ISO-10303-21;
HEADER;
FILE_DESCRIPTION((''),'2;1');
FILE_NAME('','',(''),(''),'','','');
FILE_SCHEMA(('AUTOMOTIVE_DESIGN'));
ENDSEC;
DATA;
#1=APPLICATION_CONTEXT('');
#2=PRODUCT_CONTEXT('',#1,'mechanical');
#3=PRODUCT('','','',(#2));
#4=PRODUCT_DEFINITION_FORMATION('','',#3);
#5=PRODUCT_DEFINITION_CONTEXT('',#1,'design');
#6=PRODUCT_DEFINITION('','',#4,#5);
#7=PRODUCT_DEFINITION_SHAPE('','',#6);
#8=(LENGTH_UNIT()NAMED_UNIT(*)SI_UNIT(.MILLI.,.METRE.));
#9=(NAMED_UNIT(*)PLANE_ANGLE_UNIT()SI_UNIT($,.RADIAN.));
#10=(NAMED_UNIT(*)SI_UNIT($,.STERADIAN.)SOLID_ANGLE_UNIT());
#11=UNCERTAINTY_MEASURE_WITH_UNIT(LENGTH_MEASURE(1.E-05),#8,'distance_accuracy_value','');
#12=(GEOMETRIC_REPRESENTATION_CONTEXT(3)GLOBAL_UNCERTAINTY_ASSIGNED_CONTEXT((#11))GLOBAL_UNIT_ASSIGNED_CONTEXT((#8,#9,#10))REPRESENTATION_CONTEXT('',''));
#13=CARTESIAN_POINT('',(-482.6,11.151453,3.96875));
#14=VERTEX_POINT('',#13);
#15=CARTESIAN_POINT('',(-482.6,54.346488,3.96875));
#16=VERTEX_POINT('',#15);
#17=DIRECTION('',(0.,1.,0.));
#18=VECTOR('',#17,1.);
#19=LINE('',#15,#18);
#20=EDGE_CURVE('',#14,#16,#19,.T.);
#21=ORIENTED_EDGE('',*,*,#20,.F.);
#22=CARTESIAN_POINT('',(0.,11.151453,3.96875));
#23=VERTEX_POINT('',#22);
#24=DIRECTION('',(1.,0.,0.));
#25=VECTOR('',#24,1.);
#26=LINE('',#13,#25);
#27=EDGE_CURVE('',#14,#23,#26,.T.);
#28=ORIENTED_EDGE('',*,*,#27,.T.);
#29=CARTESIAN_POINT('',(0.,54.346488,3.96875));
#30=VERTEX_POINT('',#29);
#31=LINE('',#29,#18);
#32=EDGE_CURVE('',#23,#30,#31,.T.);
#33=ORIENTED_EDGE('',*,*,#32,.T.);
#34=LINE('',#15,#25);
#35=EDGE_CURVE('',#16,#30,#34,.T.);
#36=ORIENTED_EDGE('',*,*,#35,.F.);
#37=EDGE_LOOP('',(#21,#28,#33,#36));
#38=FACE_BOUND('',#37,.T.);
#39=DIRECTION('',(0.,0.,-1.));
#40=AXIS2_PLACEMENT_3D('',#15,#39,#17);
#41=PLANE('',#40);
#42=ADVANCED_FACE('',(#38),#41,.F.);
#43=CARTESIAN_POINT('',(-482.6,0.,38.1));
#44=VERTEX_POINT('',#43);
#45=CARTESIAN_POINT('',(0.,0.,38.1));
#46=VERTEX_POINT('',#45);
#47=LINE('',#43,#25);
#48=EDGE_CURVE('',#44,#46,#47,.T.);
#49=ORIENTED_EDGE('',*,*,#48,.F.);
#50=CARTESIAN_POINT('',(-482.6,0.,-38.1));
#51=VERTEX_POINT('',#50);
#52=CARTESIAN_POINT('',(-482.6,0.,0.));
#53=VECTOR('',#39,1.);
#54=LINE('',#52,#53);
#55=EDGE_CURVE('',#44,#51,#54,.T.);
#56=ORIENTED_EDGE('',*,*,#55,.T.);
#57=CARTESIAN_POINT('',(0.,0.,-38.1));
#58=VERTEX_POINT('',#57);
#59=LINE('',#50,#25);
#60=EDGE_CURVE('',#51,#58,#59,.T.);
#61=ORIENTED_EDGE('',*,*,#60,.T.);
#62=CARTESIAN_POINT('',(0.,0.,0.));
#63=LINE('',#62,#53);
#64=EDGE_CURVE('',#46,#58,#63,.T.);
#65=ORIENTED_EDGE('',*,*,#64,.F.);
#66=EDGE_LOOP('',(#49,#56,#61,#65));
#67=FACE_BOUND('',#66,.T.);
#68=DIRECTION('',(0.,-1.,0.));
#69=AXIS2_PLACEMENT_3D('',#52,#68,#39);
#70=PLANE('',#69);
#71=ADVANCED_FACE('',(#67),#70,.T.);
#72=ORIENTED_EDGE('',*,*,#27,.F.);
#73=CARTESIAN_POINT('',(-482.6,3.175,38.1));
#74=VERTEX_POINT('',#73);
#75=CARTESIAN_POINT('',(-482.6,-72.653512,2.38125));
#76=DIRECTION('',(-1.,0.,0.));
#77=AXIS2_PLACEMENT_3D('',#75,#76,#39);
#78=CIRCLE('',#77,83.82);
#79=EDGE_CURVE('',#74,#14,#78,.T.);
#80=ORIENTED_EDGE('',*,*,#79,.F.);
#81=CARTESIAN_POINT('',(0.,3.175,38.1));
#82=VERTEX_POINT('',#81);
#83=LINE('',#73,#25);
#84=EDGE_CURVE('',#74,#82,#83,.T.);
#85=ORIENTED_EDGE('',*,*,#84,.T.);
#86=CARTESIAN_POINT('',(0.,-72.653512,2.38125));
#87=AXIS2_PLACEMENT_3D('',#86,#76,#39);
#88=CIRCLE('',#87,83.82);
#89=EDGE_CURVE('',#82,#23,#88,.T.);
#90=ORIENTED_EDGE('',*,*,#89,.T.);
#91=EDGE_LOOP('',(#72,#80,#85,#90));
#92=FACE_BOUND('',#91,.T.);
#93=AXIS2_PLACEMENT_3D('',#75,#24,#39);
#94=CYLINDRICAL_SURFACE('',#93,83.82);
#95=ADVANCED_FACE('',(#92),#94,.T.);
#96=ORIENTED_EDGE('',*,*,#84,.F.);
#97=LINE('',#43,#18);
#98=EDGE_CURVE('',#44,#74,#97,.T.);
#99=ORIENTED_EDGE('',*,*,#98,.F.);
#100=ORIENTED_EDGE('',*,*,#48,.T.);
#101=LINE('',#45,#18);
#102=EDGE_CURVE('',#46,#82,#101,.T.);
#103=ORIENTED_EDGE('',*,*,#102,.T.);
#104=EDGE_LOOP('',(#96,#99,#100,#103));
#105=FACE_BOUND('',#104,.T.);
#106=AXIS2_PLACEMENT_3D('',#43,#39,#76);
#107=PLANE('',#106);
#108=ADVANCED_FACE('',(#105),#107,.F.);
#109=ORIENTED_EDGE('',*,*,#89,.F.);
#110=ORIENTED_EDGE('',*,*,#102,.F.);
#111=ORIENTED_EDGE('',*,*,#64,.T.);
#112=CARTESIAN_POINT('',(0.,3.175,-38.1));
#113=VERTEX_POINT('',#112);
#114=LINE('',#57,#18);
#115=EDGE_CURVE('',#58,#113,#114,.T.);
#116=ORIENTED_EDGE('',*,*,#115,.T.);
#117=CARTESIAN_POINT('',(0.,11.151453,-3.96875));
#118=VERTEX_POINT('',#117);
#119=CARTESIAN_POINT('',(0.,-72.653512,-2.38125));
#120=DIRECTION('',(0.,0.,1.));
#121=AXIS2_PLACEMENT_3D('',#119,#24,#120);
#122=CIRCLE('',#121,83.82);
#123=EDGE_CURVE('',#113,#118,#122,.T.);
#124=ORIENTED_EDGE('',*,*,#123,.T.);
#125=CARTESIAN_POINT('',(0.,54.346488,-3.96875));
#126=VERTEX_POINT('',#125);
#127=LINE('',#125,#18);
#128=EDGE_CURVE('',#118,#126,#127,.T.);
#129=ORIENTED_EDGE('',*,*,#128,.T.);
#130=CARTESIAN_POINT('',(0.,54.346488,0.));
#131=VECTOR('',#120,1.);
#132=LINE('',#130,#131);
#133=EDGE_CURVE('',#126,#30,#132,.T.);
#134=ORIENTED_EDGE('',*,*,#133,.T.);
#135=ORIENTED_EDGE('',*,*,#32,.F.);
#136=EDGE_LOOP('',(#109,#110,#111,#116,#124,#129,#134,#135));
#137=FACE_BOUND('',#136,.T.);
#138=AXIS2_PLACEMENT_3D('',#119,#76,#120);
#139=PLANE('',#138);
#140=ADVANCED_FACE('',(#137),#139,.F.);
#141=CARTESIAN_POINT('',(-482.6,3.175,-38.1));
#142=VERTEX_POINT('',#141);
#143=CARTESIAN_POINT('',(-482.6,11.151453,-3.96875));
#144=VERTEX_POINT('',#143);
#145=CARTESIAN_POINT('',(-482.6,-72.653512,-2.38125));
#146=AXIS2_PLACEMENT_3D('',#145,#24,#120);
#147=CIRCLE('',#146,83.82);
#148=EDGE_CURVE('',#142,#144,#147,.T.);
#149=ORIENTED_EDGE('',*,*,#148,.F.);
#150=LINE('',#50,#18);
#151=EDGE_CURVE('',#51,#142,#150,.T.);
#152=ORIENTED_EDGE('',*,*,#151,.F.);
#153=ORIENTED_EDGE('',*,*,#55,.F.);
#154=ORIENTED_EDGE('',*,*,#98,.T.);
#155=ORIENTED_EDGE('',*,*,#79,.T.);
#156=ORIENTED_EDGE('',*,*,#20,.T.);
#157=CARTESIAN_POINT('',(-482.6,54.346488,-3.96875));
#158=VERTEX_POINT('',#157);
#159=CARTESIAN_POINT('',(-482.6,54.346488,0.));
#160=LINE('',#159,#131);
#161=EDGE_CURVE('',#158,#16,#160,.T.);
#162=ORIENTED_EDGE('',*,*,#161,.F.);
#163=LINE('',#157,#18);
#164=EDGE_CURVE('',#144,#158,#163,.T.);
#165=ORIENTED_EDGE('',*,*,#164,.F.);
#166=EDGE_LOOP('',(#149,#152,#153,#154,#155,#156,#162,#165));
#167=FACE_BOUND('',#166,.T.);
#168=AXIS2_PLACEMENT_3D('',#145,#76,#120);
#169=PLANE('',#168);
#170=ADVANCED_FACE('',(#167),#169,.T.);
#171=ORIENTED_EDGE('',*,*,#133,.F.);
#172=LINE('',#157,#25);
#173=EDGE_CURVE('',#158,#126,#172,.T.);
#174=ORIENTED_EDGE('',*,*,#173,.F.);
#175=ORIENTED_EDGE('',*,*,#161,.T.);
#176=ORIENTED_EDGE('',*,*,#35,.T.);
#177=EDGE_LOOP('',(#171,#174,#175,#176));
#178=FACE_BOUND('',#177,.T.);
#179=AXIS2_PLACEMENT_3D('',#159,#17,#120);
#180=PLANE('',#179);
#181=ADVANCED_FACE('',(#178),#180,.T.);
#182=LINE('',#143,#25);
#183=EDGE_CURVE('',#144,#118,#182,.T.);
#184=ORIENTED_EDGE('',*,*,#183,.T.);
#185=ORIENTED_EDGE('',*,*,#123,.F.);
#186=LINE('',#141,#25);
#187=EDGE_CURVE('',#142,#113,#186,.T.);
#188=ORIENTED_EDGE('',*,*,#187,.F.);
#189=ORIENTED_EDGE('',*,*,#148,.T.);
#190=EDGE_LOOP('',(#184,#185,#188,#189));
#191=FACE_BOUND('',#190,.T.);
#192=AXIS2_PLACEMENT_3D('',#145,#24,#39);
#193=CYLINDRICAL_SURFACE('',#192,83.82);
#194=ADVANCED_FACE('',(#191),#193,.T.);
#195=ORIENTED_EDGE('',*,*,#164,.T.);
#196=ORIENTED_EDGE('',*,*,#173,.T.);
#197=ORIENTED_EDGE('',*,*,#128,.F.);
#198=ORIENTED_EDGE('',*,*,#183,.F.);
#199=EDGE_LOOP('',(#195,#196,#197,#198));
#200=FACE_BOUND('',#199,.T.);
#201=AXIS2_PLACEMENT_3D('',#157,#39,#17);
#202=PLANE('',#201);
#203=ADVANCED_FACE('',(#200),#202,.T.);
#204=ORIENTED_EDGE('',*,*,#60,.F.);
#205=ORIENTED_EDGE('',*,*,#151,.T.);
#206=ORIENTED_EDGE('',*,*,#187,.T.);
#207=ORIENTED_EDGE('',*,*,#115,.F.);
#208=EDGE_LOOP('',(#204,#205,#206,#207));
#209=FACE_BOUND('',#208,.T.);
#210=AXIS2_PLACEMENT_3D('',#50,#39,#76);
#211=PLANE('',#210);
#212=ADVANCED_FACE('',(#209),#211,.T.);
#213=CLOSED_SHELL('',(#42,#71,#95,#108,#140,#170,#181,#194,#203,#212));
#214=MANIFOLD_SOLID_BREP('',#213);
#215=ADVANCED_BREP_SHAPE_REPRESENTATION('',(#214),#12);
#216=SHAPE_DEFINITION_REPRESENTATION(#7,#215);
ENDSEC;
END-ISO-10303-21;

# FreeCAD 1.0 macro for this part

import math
import FreeCAD as App
import Part
import Sketcher
Q = App.Units.Quantity

doc = App.newDocument("Part")
body = doc.addObject("PartDesign::Body", "Body")

# Sketch on YZ plane
sketch1 = body.newObject("Sketcher::SketchObject", "Sketch")
sketch1.AttachmentSupport = (doc.getObject("YZ_Plane"), [""])
sketch1.MapMode = "FlatFace"
sketch1.addGeometry([
    Part.LineSegment(App.Vector(54.3, 0, 0), App.Vector(0, 0, 0)),  # 0
    Part.LineSegment(App.Vector(0, 0, 0), App.Vector(0, -38.1, 0)),  # 1
    Part.LineSegment(App.Vector(0, -38.1, 0), App.Vector(3.2, -38.1, 0)),  # 2
    Part.ArcOfCircle(Part.Circle(App.Vector(-72.7, -2.4, 0), App.Vector(0, 0, 1), 83.8), math.radians(-25), math.radians(-1)),  # 3
    Part.LineSegment(App.Vector(11.2, -4, 0), App.Vector(54.3, -4, 0)),  # 4
    Part.LineSegment(App.Vector(54.3, -4, 0), App.Vector(54.3, 0, 0)),  # 5
], False)
sketch1.addConstraint([
    Sketcher.Constraint("Coincident", 0, 2, 1, 1),
    Sketcher.Constraint("Coincident", 1, 2, 2, 1),
    Sketcher.Constraint("Coincident", 2, 2, 3, 1),
    Sketcher.Constraint("Coincident", 3, 2, 4, 1),
    Sketcher.Constraint("Coincident", 4, 2, 5, 1),
    Sketcher.Constraint("Coincident", 5, 2, 0, 1),
    Sketcher.Constraint("Horizontal", 0),
    Sketcher.Constraint("Vertical", 1),
    Sketcher.Constraint("Horizontal", 2),
    Sketcher.Constraint("Horizontal", 4),
    Sketcher.Constraint("Vertical", 5),
    Sketcher.Constraint("Coincident", 0, 2, -1, 1),
    Sketcher.Constraint("Radius", 3, Q("3.3 in")),
    Sketcher.Constraint("DistanceY", 1, 2, 1, 1, Q("1.5 in")),
    Sketcher.Constraint("DistanceX", 3, 3, 4, 2, Q("5 in")),
    Sketcher.Constraint("DistanceX", 2, 1, 2, 2, Q("0.125 in")),
    Sketcher.Constraint("DistanceY", 5, 1, 5, 2, Q("0.15625 in")),
    Sketcher.Constraint("DistanceY", 3, 3, -1, 1, Q("0.09375 in")),
])
pad1 = body.newObject("PartDesign::Pad", "Pad")
pad1.Profile = sketch1
pad1.Length = Q("19 in")
pad1.Reversed = True
doc.recompute()

mirrored = body.newObject("PartDesign::Mirrored", "Mirrored")
mirrored.Originals = [pad1]
mirrored.MirrorPlane = (doc.getObject("XY_Plane"), [""])
body.Tip = mirrored

doc.recompute()
